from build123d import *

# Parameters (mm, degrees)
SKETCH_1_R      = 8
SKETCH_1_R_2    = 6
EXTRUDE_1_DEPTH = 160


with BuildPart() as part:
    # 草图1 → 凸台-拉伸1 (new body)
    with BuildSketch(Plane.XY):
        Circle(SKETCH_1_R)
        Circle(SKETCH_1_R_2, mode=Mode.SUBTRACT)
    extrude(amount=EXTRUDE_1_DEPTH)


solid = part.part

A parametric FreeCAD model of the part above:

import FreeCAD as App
import Part
import Sketcher

V = App.Vector
Q = App.Units.Quantity

doc = App.newDocument("Part")
body = doc.addObject("PartDesign::Body", "Body")

# Sketch on XY plane
sketch1 = body.newObject("Sketcher::SketchObject", "Sketch")
sketch1.AttachmentSupport = (doc.getObject("XY_Plane"), [""])
sketch1.MapMode = "FlatFace"
sketch1.addGeometry([
    Part.Circle(V(0, 0, 0), V(0, 0, 1), 8),
    Part.Circle(V(0, 0, 0), V(0, 0, 1), 6),
], False)
sketch1.addConstraint([
    Sketcher.Constraint("Coincident", 0, 3, -1, 1),
    Sketcher.Constraint("Coincident", 1, 3, -1, 1),
    Sketcher.Constraint("Diameter", 0, Q("16 mm")),
    Sketcher.Constraint("Diameter", 1, Q("12 mm")),
])
pad1 = body.newObject("PartDesign::Pad", "Pad")
pad1.Profile = sketch1
pad1.Length = 160

doc.recompute()
